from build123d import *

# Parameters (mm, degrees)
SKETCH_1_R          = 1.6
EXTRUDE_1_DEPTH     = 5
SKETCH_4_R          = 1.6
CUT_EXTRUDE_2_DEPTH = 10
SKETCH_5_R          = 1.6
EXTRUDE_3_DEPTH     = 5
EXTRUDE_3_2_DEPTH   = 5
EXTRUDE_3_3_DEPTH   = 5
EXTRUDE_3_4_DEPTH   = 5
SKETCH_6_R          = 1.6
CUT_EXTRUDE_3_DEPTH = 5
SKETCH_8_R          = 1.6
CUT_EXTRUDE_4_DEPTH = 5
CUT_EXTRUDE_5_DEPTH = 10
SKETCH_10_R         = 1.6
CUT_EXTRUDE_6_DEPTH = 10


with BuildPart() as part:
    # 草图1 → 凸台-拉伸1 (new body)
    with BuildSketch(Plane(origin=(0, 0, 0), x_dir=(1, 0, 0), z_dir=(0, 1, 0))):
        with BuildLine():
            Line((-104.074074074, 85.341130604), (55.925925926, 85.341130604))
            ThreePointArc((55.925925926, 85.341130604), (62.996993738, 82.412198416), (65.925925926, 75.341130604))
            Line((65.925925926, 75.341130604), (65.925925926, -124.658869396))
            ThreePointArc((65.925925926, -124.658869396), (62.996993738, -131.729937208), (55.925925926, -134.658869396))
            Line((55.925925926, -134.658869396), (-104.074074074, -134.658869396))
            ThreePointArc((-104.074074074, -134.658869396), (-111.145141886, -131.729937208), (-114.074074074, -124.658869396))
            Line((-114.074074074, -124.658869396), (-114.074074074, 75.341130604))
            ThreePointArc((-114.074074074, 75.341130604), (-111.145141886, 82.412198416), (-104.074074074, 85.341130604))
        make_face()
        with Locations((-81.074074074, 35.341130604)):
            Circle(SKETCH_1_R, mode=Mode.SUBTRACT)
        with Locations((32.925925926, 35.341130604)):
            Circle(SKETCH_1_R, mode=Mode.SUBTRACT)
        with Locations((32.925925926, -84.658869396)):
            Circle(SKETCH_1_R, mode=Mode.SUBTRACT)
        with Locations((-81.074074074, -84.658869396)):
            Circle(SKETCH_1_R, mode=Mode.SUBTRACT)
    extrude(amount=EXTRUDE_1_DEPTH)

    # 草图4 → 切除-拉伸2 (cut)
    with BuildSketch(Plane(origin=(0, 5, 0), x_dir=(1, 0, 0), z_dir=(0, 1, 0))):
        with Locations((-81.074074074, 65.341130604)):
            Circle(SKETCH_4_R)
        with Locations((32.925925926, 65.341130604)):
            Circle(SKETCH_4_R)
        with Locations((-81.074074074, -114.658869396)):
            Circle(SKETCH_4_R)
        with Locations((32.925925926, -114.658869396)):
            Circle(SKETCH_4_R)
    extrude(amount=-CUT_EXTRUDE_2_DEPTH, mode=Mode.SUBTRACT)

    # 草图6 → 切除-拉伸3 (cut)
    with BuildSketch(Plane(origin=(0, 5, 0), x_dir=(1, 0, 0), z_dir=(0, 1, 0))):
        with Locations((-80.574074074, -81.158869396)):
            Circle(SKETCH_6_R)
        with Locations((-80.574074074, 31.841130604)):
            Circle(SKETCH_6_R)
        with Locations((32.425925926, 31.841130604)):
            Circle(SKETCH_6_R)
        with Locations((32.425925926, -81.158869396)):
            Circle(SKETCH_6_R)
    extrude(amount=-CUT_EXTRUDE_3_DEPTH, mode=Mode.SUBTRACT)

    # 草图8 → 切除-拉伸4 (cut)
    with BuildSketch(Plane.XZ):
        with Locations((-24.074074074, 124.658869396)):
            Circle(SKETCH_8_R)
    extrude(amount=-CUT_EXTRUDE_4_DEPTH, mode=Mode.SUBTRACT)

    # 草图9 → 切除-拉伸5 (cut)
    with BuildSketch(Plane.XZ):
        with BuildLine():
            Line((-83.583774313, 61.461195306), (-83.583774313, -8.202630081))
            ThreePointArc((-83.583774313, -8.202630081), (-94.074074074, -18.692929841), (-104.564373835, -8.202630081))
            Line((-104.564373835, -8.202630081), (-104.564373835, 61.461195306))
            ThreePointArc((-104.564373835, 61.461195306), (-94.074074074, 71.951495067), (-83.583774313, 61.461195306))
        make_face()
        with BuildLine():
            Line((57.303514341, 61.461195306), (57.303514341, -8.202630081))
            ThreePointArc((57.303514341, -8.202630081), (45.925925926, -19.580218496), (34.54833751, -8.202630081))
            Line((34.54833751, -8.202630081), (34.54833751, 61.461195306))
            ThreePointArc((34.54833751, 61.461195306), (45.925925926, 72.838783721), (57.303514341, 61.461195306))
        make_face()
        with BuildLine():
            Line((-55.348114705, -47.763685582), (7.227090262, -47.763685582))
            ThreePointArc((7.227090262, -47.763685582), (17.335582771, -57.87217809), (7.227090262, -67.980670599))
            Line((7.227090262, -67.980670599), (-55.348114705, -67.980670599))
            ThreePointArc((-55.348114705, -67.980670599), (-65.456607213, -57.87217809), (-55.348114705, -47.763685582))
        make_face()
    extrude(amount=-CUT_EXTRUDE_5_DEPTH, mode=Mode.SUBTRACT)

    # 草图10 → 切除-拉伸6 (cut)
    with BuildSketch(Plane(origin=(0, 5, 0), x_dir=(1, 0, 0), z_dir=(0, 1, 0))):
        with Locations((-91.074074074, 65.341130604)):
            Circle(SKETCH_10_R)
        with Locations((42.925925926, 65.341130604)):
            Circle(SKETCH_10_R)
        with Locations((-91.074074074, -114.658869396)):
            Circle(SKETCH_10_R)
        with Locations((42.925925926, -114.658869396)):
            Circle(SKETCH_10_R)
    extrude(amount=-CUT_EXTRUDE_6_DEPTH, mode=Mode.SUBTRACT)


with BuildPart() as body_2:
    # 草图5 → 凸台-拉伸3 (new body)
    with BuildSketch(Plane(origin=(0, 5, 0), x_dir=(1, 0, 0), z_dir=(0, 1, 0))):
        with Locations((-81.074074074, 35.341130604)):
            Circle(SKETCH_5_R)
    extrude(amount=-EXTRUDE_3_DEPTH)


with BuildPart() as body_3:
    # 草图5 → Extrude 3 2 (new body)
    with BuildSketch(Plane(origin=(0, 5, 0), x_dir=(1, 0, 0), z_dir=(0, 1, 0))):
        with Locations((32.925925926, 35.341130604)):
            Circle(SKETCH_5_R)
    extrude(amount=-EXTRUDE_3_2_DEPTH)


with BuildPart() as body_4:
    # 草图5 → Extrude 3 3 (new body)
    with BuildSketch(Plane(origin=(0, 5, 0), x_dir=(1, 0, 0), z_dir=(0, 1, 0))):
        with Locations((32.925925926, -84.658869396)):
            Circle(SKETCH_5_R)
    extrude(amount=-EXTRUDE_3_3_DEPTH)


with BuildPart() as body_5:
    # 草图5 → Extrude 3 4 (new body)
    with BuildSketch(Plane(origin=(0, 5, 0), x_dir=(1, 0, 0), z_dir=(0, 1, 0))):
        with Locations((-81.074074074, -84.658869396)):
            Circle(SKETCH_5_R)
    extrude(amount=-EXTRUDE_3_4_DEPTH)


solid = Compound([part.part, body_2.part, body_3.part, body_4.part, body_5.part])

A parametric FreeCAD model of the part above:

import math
import FreeCAD as App
import Part
import Sketcher
from FreeCAD import Vector

doc = App.newDocument("Part")
body = doc.addObject("PartDesign::Body", "Body")

# Sketch on XZ plane
sketch1 = body.newObject("Sketcher::SketchObject", "Sketch")
sketch1.AttachmentSupport = (doc.getObject("XZ_Plane"), [""])
sketch1.MapMode = "FlatFace"
sketch1.addGeometry([
    Part.LineSegment(Vector(55.925926, -85.341131, 0), Vector(-104.074074, -85.341131, 0)),  # 0
    Part.ArcOfCircle(Part.Circle(Vector(-104.074074, -75.341131, 0), Vector(0, 0, 1), 10), math.radians(180), math.radians(270)),  # 1
    Part.LineSegment(Vector(-114.074074, -75.341131, 0), Vector(-114.074074, 124.658869, 0)),  # 2
    Part.ArcOfCircle(Part.Circle(Vector(-104.074074, 124.658869, 0), Vector(0, 0, 1), 10), math.radians(90), math.radians(180)),  # 3
    Part.LineSegment(Vector(-104.074074, 134.658869, 0), Vector(55.925926, 134.658869, 0)),  # 4
    Part.ArcOfCircle(Part.Circle(Vector(55.925926, 124.658869, 0), Vector(0, 0, 1), 10), math.radians(0), math.radians(90)),  # 5
    Part.LineSegment(Vector(65.925926, 124.658869, 0), Vector(65.925926, -75.341131, 0)),  # 6
    Part.ArcOfCircle(Part.Circle(Vector(55.925926, -75.341131, 0), Vector(0, 0, 1), 10), math.radians(-90), math.radians(0)),  # 7
    Part.Circle(Vector(32.925926, 84.658869, 0), Vector(0, 0, 1), 1.6),  # 8
    Part.Circle(Vector(-81.074074, 84.658869, 0), Vector(0, 0, 1), 1.6),  # 9
    Part.Circle(Vector(32.925926, -35.341131, 0), Vector(0, 0, 1), 1.6),  # 10
    Part.Circle(Vector(-81.074074, -35.341131, 0), Vector(0, 0, 1), 1.6),  # 11
], False)
sketch1.addConstraint([
    Sketcher.Constraint("Tangent", 0, 2, 1, 2),
    Sketcher.Constraint("Tangent", 1, 1, 2, 1),
    Sketcher.Constraint("Tangent", 2, 2, 3, 2),
    Sketcher.Constraint("Tangent", 3, 1, 4, 1),
    Sketcher.Constraint("Tangent", 4, 2, 5, 2),
    Sketcher.Constraint("Tangent", 5, 1, 6, 1),
    Sketcher.Constraint("Tangent", 6, 2, 7, 2),
    Sketcher.Constraint("Tangent", 7, 1, 0, 1),
    Sketcher.Constraint("Horizontal", 0),
    Sketcher.Constraint("Vertical", 2),
    Sketcher.Constraint("Horizontal", 4),
    Sketcher.Constraint("Vertical", 6),
    Sketcher.Constraint("Equal", 1, 3),
    Sketcher.Constraint("Equal", 3, 5),
    Sketcher.Constraint("Equal", 5, 7),
    Sketcher.Constraint("Equal", 8, 9),
    Sketcher.Constraint("Equal", 9, 10),
    Sketcher.Constraint("Equal", 10, 11),
    Sketcher.Constraint("Horizontal", 8, 3, 9, 3),
    Sketcher.Constraint("Horizontal", 10, 3, 11, 3),
    Sketcher.Constraint("Vertical", 8, 3, 10, 3),
    Sketcher.Constraint("Vertical", 9, 3, 11, 3),
    Sketcher.Constraint("Radius", 1, 10.0),
    Sketcher.Constraint("Diameter", 8, 3.2),
    Sketcher.Constraint("DistanceX", 0, 2, 0, 1, 160.0),
    Sketcher.Constraint("DistanceY", 2, 1, 2, 2, 200.0),
    Sketcher.Constraint("DistanceX", 8, 3, 5, 3, 23.0),
    Sketcher.Constraint("DistanceY", 8, 3, 5, 3, 40.0),
    Sketcher.Constraint("DistanceX", 3, 3, 9, 3, 23.0),
    Sketcher.Constraint("DistanceY", 7, 3, 10, 3, 40.0),
    Sketcher.Constraint("DistanceY", 1, 3, -1, 1, 75.341131),
    Sketcher.Constraint("DistanceX", 1, 3, -1, 1, 104.074074),
])
pad1 = body.newObject("PartDesign::Pad", "Pad")
pad1.Profile = sketch1
pad1.Length = 5
pad1.Reversed = True

# Sketch on XZ plane
sketch2 = body.newObject("Sketcher::SketchObject", "Sketch001")
sketch2.AttachmentSupport = (doc.getObject("XZ_Plane"), [""])
sketch2.MapMode = "FlatFace"
sketch2.AttachmentOffset = App.Placement(Vector(0, 0, -5), App.Rotation())
sketch2.addGeometry([
    Part.Circle(Vector(-81.074074, -65.341131, 0), Vector(0, 0, 1), 1.6),
    Part.Circle(Vector(32.925926, -65.341131, 0), Vector(0, 0, 1), 1.6),
    Part.Circle(Vector(-81.074074, 114.658869, 0), Vector(0, 0, 1), 1.6),
    Part.Circle(Vector(32.925926, 114.658869, 0), Vector(0, 0, 1), 1.6),
], False)
sketch2.addConstraint([
    Sketcher.Constraint("Equal", 0, 1),
    Sketcher.Constraint("Equal", 1, 2),
    Sketcher.Constraint("Equal", 2, 3),
    Sketcher.Constraint("Horizontal", 0, 3, 1, 3),
    Sketcher.Constraint("Horizontal", 2, 3, 3, 3),
    Sketcher.Constraint("Vertical", 0, 3, 2, 3),
    Sketcher.Constraint("Vertical", 1, 3, 3, 3),
    Sketcher.Constraint("Diameter", 0, 3.2),
    Sketcher.Constraint("DistanceX", 0, 3, 1, 3, 114.0),
    Sketcher.Constraint("DistanceY", 0, 3, 2, 3, 180.0),
    Sketcher.Constraint("DistanceY", 0, 3, -1, 1, 65.341131),
    Sketcher.Constraint("DistanceX", 0, 3, -1, 1, 81.074074),
])
pocket1 = body.newObject("PartDesign::Pocket", "Pocket")
pocket1.Profile = sketch2
pocket1.Length = 10
pocket1.Reversed = True

# Sketch on XZ plane
sketch3 = body.newObject("Sketcher::SketchObject", "Sketch002")
sketch3.AttachmentSupport = (doc.getObject("XZ_Plane"), [""])
sketch3.MapMode = "FlatFace"
sketch3.AttachmentOffset = App.Placement(Vector(0, 0, -5), App.Rotation())
sketch3.addGeometry([
    Part.Circle(Vector(-80.574074, 81.158869, 0), Vector(0, 0, 1), 1.6),
    Part.Circle(Vector(-80.574074, -31.841131, 0), Vector(0, 0, 1), 1.6),
    Part.Circle(Vector(32.425926, -31.841131, 0), Vector(0, 0, 1), 1.6),
    Part.Circle(Vector(32.425926, 81.158869, 0), Vector(0, 0, 1), 1.6),
], False)
sketch3.addConstraint([
    Sketcher.Constraint("Equal", 0, 1),
    Sketcher.Constraint("Equal", 1, 2),
    Sketcher.Constraint("Equal", 2, 3),
    Sketcher.Constraint("Horizontal", 1, 3, 2, 3),
    Sketcher.Constraint("Horizontal", 0, 3, 3, 3),
    Sketcher.Constraint("Vertical", 0, 3, 1, 3),
    Sketcher.Constraint("Vertical", 2, 3, 3, 3),
    Sketcher.Constraint("Diameter", 0, 3.2),
    Sketcher.Constraint("DistanceY", 1, 3, 0, 3, 113.0),
    Sketcher.Constraint("DistanceX", 1, 3, 2, 3, 113.0),
    Sketcher.Constraint("DistanceY", -1, 1, 0, 3, 81.158869),
    Sketcher.Constraint("DistanceX", 0, 3, -1, 1, 80.574074),
])
pocket2 = body.newObject("PartDesign::Pocket", "Pocket001")
pocket2.Profile = sketch3
pocket2.Length = 5
pocket2.Reversed = True

# Sketch on XZ plane
sketch4 = body.newObject("Sketcher::SketchObject", "Sketch003")
sketch4.AttachmentSupport = (doc.getObject("XZ_Plane"), [""])
sketch4.MapMode = "FlatFace"
sketch4.addGeometry(Part.Circle(Vector(-24.074074, 124.658869, 0), Vector(0, 0, 1), 1.6), False)
sketch4.addConstraint([
    Sketcher.Constraint("Diameter", 0, 3.2),
    Sketcher.Constraint("DistanceY", -1, 1, 0, 3, 124.658869),
    Sketcher.Constraint("DistanceX", 0, 3, -1, 1, 24.074074),
])
pocket3 = body.newObject("PartDesign::Pocket", "Pocket002")
pocket3.Profile = sketch4
pocket3.Length = 5

# Sketch on XZ plane
sketch5 = body.newObject("Sketcher::SketchObject", "Sketch004")
sketch5.AttachmentSupport = (doc.getObject("XZ_Plane"), [""])
sketch5.MapMode = "FlatFace"
sketch5.addGeometry([
    Part.LineSegment(Vector(-83.583774, -8.20263, 0), Vector(-83.583774, 61.461195, 0)),  # 0
    Part.ArcOfCircle(Part.Circle(Vector(-94.074074, 61.461195, 0), Vector(0, 0, 1), 10.4903), math.radians(0), math.radians(180)),  # 1
    Part.LineSegment(Vector(-104.564374, 61.461195, 0), Vector(-104.564374, -8.20263, 0)),  # 2
    Part.ArcOfCircle(Part.Circle(Vector(-94.074074, -8.20263, 0), Vector(0, 0, 1), 10.4903), math.radians(-180), math.radians(0)),  # 3
    Part.LineSegment(Vector(57.303514, -8.20263, 0), Vector(57.303514, 61.461195, 0)),  # 4
    Part.ArcOfCircle(Part.Circle(Vector(45.925926, 61.461195, 0), Vector(0, 0, 1), 11.377588), math.radians(0), math.radians(180)),  # 5
    Part.LineSegment(Vector(34.548338, 61.461195, 0), Vector(34.548338, -8.20263, 0)),  # 6
    Part.ArcOfCircle(Part.Circle(Vector(45.925926, -8.20263, 0), Vector(0, 0, 1), 11.377588), math.radians(180), math.radians(360)),  # 7
    Part.LineSegment(Vector(7.22709, -47.763686, 0), Vector(-55.348115, -47.763686, 0)),  # 8
    Part.ArcOfCircle(Part.Circle(Vector(-55.348115, -57.872178, 0), Vector(0, 0, 1), 10.108493), math.radians(90), math.radians(270)),  # 9
    Part.LineSegment(Vector(-55.348115, -67.980671, 0), Vector(7.22709, -67.980671, 0)),  # 10
    Part.ArcOfCircle(Part.Circle(Vector(7.22709, -57.872178, 0), Vector(0, 0, 1), 10.108493), math.radians(-90), math.radians(90)),  # 11
], False)
sketch5.addConstraint([
    Sketcher.Constraint("Tangent", 0, 2, 1, 1),
    Sketcher.Constraint("Tangent", 1, 2, 2, 1),
    Sketcher.Constraint("Tangent", 2, 2, 3, 1),
    Sketcher.Constraint("Tangent", 3, 2, 0, 1),
    Sketcher.Constraint("Tangent", 4, 2, 5, 1),
    Sketcher.Constraint("Tangent", 5, 2, 6, 1),
    Sketcher.Constraint("Tangent", 6, 2, 7, 1),
    Sketcher.Constraint("Tangent", 7, 2, 4, 1),
    Sketcher.Constraint("Tangent", 8, 2, 9, 1),
    Sketcher.Constraint("Tangent", 9, 2, 10, 1),
    Sketcher.Constraint("Tangent", 10, 2, 11, 1),
    Sketcher.Constraint("Tangent", 11, 2, 8, 1),
    Sketcher.Constraint("Vertical", 0),
    Sketcher.Constraint("Vertical", 2),
    Sketcher.Constraint("Vertical", 4),
    Sketcher.Constraint("Vertical", 6),
    Sketcher.Constraint("Horizontal", 8),
    Sketcher.Constraint("Horizontal", 10),
    Sketcher.Constraint("Horizontal", 1, 3, 5, 3),
    Sketcher.Constraint("Horizontal", 3, 3, 7, 3),
    Sketcher.Constraint("DistanceX", 1, 3, 5, 3, 140.0),
    Sketcher.Constraint("Radius", 1, 10.4903),
    Sketcher.Constraint("Radius", 5, 11.377588),
    Sketcher.Constraint("Radius", 9, 10.108493),
    Sketcher.Constraint("DistanceX", 8, 2, 8, 1, 62.575205),
    Sketcher.Constraint("DistanceY", 0, 1, 0, 2, 69.663825),
    Sketcher.Constraint("DistanceY", 3, 3, -1, 1, 8.20263),
    Sketcher.Constraint("DistanceY", 9, 3, -1, 1, 57.872178),
    Sketcher.Constraint("DistanceX", -1, 1, 11, 3, 7.22709),
    Sketcher.Constraint("DistanceX", 3, 3, 9, 3, 38.725959),
])
pocket4 = body.newObject("PartDesign::Pocket", "Pocket003")
pocket4.Profile = sketch5
pocket4.Length = 10

# Sketch on XZ plane
sketch6 = body.newObject("Sketcher::SketchObject", "Sketch005")
sketch6.AttachmentSupport = (doc.getObject("XZ_Plane"), [""])
sketch6.MapMode = "FlatFace"
sketch6.AttachmentOffset = App.Placement(Vector(0, 0, -5), App.Rotation())
sketch6.addGeometry([
    Part.Circle(Vector(-91.074074, -65.341131, 0), Vector(0, 0, 1), 1.6),
    Part.Circle(Vector(42.925926, -65.341131, 0), Vector(0, 0, 1), 1.6),
    Part.Circle(Vector(-91.074074, 114.658869, 0), Vector(0, 0, 1), 1.6),
    Part.Circle(Vector(42.925926, 114.658869, 0), Vector(0, 0, 1), 1.6),
], False)
sketch6.addConstraint([
    Sketcher.Constraint("Equal", 0, 1),
    Sketcher.Constraint("Equal", 1, 2),
    Sketcher.Constraint("Equal", 2, 3),
    Sketcher.Constraint("Horizontal", 0, 3, 1, 3),
    Sketcher.Constraint("Horizontal", 2, 3, 3, 3),
    Sketcher.Constraint("Vertical", 0, 3, 2, 3),
    Sketcher.Constraint("Vertical", 1, 3, 3, 3),
    Sketcher.Constraint("Diameter", 0, 3.2),
    Sketcher.Constraint("DistanceX", 0, 3, 1, 3, 134.0),
    Sketcher.Constraint("DistanceY", 0, 3, 2, 3, 180.0),
    Sketcher.Constraint("DistanceY", 0, 3, -1, 1, 65.341131),
    Sketcher.Constraint("DistanceX", 0, 3, -1, 1, 91.074074),
])
pocket5 = body.newObject("PartDesign::Pocket", "Pocket004")
pocket5.Profile = sketch6
pocket5.Length = 10
pocket5.Reversed = True
body2 = doc.addObject("PartDesign::Body", "Body001")

# Sketch on XZ plane
sketch7 = body2.newObject("Sketcher::SketchObject", "Sketch006")
sketch7.AttachmentSupport = (doc.getObject("XZ_Plane001"), [""])
sketch7.MapMode = "FlatFace"
sketch7.AttachmentOffset = App.Placement(Vector(0, 0, -5), App.Rotation())
sketch7.addGeometry(Part.Circle(Vector(-81.074074, -35.341131, 0), Vector(0, 0, 1), 1.6), False)
sketch7.addConstraint([
    Sketcher.Constraint("Diameter", 0, 3.2),
    Sketcher.Constraint("DistanceY", 0, 3, -1, 1, 35.341131),
    Sketcher.Constraint("DistanceX", 0, 3, -1, 1, 81.074074),
])
pad2 = body2.newObject("PartDesign::Pad", "Pad001")
pad2.Profile = sketch7
pad2.Length = 5
body3 = doc.addObject("PartDesign::Body", "Body002")

# Sketch on XZ plane
sketch8 = body3.newObject("Sketcher::SketchObject", "Sketch007")
sketch8.AttachmentSupport = (doc.getObject("XZ_Plane002"), [""])
sketch8.MapMode = "FlatFace"
sketch8.AttachmentOffset = App.Placement(Vector(0, 0, -5), App.Rotation())
sketch8.addGeometry(Part.Circle(Vector(32.925926, -35.341131, 0), Vector(0, 0, 1), 1.6), False)
sketch8.addConstraint([
    Sketcher.Constraint("Diameter", 0, 3.2),
    Sketcher.Constraint("DistanceY", 0, 3, -1, 1, 35.341131),
    Sketcher.Constraint("DistanceX", -1, 1, 0, 3, 32.925926),
])
pad3 = body3.newObject("PartDesign::Pad", "Pad002")
pad3.Profile = sketch8
pad3.Length = 5
body4 = doc.addObject("PartDesign::Body", "Body003")

# Sketch on XZ plane
sketch9 = body4.newObject("Sketcher::SketchObject", "Sketch008")
sketch9.AttachmentSupport = (doc.getObject("XZ_Plane003"), [""])
sketch9.MapMode = "FlatFace"
sketch9.AttachmentOffset = App.Placement(Vector(0, 0, -5), App.Rotation())
sketch9.addGeometry(Part.Circle(Vector(32.925926, 84.658869, 0), Vector(0, 0, 1), 1.6), False)
sketch9.addConstraint([
    Sketcher.Constraint("Diameter", 0, 3.2),
    Sketcher.Constraint("DistanceY", -1, 1, 0, 3, 84.658869),
    Sketcher.Constraint("DistanceX", -1, 1, 0, 3, 32.925926),
])
pad4 = body4.newObject("PartDesign::Pad", "Pad003")
pad4.Profile = sketch9
pad4.Length = 5
body5 = doc.addObject("PartDesign::Body", "Body004")

# Sketch on XZ plane
sketch10 = body5.newObject("Sketcher::SketchObject", "Sketch009")
sketch10.AttachmentSupport = (doc.getObject("XZ_Plane004"), [""])
sketch10.MapMode = "FlatFace"
sketch10.AttachmentOffset = App.Placement(Vector(0, 0, -5), App.Rotation())
sketch10.addGeometry(Part.Circle(Vector(-81.074074, 84.658869, 0), Vector(0, 0, 1), 1.6), False)
sketch10.addConstraint([
    Sketcher.Constraint("Diameter", 0, 3.2),
    Sketcher.Constraint("DistanceY", -1, 1, 0, 3, 84.658869),
    Sketcher.Constraint("DistanceX", 0, 3, -1, 1, 81.074074),
])
pad5 = body5.newObject("PartDesign::Pad", "Pad004")
pad5.Profile = sketch10
pad5.Length = 5

doc.recompute()
